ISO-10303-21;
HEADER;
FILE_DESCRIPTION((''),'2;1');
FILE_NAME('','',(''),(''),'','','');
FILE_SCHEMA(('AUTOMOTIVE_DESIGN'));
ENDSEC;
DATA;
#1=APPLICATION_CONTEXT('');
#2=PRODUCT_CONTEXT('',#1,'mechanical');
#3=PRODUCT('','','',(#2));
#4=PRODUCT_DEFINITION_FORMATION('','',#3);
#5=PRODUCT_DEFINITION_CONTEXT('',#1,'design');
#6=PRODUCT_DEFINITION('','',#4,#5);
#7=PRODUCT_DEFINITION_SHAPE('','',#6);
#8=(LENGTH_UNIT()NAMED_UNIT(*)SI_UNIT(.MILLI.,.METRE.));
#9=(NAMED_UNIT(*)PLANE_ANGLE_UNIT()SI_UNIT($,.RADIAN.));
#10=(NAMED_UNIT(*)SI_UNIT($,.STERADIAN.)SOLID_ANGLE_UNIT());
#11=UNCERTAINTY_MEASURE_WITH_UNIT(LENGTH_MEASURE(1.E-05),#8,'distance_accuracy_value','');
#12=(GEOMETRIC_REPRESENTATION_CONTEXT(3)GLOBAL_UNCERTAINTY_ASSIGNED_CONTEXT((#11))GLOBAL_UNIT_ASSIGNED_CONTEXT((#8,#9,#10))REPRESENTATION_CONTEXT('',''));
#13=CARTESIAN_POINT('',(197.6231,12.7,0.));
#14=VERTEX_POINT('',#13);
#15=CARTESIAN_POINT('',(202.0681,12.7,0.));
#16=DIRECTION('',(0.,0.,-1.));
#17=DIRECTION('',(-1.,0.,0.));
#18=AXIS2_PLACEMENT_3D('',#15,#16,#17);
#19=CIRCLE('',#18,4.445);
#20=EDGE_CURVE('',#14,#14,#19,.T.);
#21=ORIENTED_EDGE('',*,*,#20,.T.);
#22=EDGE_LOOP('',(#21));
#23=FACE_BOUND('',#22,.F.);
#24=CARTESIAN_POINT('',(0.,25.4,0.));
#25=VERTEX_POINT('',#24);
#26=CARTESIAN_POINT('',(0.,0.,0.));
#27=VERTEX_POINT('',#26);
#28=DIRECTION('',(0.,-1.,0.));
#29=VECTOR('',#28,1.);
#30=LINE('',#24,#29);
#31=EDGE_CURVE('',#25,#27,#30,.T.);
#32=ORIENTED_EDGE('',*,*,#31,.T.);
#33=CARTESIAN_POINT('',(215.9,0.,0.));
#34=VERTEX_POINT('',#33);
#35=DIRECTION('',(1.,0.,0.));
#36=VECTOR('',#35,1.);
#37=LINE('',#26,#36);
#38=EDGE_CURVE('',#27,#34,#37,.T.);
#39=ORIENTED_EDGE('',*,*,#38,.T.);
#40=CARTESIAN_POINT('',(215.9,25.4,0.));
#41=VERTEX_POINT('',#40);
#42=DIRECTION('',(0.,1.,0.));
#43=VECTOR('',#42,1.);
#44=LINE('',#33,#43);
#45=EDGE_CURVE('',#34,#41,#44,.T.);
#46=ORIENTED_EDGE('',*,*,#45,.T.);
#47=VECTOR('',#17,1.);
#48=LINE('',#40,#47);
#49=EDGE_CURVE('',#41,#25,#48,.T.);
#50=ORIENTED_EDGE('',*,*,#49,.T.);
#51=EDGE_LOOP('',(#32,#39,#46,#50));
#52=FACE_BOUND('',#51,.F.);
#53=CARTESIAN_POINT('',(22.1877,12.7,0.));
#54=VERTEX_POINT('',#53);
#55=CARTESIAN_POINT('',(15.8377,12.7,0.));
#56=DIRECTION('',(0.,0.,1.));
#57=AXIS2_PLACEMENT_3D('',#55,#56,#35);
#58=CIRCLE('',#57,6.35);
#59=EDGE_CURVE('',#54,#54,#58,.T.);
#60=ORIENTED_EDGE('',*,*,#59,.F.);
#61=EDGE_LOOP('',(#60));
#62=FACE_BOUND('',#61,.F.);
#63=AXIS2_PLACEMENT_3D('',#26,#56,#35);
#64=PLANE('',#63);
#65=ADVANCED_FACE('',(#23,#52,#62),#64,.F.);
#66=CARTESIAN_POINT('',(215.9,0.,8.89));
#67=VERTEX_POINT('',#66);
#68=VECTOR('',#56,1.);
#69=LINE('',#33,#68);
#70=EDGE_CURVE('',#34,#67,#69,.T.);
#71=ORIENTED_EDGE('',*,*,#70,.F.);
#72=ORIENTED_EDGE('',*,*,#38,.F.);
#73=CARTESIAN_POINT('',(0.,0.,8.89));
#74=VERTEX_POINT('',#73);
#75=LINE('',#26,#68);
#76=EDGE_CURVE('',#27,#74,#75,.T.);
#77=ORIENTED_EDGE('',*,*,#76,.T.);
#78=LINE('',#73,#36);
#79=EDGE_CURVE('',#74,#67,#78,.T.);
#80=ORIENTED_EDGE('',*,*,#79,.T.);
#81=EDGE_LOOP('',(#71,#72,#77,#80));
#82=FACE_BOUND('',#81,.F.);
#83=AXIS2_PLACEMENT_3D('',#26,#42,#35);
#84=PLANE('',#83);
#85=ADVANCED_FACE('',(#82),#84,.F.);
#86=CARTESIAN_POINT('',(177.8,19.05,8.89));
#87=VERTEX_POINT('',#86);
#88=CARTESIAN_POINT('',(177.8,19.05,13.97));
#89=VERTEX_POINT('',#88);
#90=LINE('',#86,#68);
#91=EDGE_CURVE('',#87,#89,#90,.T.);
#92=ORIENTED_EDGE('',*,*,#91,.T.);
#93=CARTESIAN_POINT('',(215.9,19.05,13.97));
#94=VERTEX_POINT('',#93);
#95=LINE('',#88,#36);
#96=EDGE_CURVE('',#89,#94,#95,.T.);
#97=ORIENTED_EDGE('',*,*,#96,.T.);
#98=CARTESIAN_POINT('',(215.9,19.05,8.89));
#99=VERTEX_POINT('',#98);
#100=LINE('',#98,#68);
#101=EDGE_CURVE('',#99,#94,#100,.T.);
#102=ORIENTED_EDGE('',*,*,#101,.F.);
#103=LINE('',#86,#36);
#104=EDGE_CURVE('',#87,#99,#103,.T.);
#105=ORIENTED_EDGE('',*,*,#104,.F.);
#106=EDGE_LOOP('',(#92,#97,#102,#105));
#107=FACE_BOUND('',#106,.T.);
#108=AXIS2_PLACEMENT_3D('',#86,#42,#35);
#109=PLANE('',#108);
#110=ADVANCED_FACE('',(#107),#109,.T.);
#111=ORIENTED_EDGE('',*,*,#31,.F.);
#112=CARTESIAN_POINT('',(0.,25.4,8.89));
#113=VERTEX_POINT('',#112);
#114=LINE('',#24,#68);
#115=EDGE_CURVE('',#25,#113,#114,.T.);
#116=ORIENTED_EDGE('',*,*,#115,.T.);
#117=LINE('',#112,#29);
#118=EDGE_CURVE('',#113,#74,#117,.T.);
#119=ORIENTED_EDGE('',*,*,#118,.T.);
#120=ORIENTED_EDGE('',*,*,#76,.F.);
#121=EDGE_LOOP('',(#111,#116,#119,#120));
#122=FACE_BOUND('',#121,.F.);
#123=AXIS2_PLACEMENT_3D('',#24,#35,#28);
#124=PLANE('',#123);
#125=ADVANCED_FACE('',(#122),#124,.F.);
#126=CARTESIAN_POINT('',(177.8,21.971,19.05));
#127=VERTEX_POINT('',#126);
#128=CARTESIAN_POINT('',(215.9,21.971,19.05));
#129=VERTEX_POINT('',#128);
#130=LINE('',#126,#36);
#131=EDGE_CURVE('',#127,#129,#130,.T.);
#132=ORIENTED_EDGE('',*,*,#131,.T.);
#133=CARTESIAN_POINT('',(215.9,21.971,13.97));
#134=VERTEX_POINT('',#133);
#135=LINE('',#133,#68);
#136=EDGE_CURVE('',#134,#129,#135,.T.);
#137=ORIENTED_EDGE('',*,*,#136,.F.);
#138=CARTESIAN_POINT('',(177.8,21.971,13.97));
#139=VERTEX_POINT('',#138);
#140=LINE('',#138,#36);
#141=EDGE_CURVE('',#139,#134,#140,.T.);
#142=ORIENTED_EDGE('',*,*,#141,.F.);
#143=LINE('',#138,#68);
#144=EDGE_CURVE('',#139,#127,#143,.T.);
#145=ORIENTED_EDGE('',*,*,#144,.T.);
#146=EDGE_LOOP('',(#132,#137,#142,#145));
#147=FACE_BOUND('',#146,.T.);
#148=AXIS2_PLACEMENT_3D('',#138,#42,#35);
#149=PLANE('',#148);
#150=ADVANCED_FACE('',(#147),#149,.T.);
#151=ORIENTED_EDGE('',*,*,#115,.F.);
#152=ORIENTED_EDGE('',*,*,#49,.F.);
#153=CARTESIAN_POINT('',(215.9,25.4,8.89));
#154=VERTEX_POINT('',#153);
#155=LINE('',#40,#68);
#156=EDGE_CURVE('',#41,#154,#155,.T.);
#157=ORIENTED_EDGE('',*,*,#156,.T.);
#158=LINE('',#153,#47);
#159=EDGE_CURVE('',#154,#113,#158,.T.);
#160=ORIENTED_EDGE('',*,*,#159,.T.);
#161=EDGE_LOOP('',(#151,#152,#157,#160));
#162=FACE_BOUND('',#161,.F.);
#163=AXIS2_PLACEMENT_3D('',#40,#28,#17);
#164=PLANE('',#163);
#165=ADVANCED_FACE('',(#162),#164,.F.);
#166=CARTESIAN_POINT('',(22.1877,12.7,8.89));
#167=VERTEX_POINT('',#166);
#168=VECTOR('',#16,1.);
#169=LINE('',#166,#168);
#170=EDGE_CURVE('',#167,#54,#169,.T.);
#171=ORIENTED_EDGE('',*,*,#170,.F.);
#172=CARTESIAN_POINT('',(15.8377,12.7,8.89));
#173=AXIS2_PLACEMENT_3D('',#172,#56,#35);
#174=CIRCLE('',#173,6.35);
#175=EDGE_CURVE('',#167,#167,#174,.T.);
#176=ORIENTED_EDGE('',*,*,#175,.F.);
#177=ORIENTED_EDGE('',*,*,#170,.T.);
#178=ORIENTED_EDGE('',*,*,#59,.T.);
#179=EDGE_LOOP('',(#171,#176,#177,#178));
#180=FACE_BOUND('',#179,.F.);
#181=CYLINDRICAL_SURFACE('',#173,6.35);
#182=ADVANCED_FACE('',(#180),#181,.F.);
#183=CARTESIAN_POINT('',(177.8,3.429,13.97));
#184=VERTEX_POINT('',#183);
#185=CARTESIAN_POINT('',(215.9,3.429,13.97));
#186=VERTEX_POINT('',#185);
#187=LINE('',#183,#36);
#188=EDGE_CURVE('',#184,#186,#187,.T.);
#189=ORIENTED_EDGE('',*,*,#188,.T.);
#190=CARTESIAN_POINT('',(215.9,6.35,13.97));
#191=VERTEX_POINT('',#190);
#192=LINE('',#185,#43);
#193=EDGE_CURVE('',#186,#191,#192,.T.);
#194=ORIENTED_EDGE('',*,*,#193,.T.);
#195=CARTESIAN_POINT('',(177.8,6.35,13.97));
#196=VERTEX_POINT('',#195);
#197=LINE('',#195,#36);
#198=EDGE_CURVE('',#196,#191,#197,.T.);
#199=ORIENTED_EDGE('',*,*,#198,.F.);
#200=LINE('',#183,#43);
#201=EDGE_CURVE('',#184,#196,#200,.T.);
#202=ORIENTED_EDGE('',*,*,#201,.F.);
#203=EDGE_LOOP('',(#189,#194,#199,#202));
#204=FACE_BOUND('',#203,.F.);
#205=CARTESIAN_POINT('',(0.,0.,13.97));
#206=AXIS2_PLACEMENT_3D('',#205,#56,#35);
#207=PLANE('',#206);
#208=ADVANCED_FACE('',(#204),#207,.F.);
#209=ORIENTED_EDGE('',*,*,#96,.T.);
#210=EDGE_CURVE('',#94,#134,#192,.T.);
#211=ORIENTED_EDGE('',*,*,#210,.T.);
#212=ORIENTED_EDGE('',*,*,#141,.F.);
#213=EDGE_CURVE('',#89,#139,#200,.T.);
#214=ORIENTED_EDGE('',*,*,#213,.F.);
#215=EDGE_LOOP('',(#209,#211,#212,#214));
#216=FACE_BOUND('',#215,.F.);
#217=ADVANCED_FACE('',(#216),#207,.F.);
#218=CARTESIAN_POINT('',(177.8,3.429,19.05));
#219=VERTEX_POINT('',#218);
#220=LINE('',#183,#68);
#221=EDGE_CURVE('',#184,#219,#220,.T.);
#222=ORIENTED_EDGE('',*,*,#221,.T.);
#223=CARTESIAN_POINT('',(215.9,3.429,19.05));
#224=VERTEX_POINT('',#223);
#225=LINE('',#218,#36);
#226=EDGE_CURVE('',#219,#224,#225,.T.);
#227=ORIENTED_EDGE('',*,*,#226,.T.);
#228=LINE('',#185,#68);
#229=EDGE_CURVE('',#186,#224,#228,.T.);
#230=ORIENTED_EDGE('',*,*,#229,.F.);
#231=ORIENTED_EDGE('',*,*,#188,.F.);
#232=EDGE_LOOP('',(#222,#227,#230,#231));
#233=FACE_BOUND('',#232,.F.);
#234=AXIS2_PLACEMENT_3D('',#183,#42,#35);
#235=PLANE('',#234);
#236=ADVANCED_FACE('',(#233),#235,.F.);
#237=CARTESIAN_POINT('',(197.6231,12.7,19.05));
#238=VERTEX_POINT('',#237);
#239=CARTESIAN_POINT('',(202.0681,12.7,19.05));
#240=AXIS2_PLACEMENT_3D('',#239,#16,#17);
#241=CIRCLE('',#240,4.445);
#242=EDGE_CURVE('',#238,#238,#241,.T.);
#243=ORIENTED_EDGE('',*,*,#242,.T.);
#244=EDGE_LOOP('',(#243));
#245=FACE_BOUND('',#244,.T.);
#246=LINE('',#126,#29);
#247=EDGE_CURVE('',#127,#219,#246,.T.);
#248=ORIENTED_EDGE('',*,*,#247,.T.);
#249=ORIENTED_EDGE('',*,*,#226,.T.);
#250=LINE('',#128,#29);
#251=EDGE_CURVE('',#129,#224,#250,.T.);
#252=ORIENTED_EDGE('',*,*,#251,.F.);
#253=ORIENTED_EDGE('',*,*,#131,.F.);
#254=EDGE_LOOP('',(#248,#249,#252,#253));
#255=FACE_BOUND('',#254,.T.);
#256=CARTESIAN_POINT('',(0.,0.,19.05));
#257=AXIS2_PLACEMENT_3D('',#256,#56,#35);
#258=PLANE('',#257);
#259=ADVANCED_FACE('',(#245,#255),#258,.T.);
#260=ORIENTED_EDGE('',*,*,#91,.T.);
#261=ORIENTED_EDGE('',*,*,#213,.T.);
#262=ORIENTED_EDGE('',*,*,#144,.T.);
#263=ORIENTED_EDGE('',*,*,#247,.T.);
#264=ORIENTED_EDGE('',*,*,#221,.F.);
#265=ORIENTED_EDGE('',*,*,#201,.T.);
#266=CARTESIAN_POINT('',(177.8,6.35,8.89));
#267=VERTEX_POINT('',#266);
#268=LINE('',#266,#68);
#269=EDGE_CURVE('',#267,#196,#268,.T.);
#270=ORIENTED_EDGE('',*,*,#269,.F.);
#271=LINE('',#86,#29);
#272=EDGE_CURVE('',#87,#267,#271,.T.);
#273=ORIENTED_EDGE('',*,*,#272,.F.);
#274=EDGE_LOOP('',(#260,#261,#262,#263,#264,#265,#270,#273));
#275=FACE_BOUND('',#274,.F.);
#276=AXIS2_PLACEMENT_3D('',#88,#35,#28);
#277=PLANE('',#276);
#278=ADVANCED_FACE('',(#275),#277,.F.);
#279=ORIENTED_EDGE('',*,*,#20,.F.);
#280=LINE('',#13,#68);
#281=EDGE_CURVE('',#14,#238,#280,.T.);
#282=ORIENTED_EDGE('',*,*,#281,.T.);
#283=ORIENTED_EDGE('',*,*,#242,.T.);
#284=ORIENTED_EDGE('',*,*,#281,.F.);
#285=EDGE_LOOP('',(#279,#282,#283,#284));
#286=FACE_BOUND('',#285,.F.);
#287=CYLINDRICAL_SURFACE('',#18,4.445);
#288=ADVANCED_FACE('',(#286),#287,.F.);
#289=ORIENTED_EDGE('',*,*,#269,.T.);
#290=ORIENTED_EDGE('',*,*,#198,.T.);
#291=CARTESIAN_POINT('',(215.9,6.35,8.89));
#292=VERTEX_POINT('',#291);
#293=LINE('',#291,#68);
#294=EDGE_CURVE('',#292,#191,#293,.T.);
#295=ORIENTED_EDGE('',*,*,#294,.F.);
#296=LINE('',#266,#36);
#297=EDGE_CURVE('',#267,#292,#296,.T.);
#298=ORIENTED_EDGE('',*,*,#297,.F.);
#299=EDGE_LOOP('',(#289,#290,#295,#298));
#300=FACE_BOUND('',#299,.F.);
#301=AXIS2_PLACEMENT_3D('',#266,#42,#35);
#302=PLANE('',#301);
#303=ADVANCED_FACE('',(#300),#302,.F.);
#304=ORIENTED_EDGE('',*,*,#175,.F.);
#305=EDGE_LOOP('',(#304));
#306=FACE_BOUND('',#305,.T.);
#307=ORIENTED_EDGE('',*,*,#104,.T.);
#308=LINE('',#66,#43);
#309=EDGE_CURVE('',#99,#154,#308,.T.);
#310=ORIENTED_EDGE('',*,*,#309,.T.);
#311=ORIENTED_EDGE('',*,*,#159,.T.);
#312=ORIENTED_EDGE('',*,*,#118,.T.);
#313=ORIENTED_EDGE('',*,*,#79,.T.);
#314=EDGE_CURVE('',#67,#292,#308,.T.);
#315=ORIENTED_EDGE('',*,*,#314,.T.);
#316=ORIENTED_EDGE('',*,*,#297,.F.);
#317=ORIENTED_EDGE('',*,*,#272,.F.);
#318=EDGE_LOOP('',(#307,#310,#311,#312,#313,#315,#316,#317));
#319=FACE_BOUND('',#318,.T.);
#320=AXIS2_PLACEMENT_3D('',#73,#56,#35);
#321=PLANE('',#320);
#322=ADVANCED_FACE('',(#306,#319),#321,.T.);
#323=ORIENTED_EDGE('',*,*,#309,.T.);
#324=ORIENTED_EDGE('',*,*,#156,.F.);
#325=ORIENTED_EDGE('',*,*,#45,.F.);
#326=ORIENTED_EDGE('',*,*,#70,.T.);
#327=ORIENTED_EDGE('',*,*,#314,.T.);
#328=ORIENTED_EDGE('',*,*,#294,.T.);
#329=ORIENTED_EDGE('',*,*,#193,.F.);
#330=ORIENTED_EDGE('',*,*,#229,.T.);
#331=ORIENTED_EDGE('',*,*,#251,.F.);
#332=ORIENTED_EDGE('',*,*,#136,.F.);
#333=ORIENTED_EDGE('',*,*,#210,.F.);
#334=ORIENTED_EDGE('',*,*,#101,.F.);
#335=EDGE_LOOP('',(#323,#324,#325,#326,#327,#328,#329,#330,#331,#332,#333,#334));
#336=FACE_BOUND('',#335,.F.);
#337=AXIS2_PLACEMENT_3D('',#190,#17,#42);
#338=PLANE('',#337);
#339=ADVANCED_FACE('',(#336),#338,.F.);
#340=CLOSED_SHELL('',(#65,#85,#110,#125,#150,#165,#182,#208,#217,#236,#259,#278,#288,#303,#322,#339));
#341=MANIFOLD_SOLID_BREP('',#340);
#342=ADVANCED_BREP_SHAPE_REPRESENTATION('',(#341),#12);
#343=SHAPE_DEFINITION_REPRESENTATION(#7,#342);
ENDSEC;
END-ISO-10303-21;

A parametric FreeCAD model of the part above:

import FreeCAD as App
import Part
import Sketcher

V = App.Vector
Q = App.Units.Quantity

doc = App.newDocument("Part")
body = doc.addObject("PartDesign::Body", "Body")

sketch1 = body.newObject("Sketcher::SketchObject", "Sketch")
sketch1.AttachmentSupport = (doc.getObject("XY_Plane"), [""])
sketch1.MapMode = "FlatFace"
sketch1.addGeometry(Part.LineSegment(V(0, 25, 0), V(0, 0, 0)), False)
sketch1.addGeometry(Part.LineSegment(V(0, 0, 0), V(216, 0, 0)), False)
sketch1.addGeometry(Part.LineSegment(V(216, 0, 0), V(216, 25, 0)), False)
sketch1.addGeometry(Part.LineSegment(V(216, 25, 0), V(0, 25, 0)), False)
sketch1.addConstraint(Sketcher.Constraint("Coincident", 0, 2, 1, 1))
sketch1.addConstraint(Sketcher.Constraint("Coincident", 1, 2, 2, 1))
sketch1.addConstraint(Sketcher.Constraint("Coincident", 2, 2, 3, 1))
sketch1.addConstraint(Sketcher.Constraint("Coincident", 3, 2, 0, 1))
sketch1.addConstraint(Sketcher.Constraint("Vertical", 0))
sketch1.addConstraint(Sketcher.Constraint("Horizontal", 1))
sketch1.addConstraint(Sketcher.Constraint("Vertical", 2))
sketch1.addConstraint(Sketcher.Constraint("Horizontal", 3))
sketch1.addConstraint(Sketcher.Constraint("Coincident", 0, 2, -1, 1))
sketch1.addConstraint(Sketcher.Constraint("DistanceY", 0, 2, 0, 1, Q("1 in")))
sketch1.addConstraint(Sketcher.Constraint("DistanceX", 1, 1, 1, 2, Q("8.5 in")))
pad1 = body.newObject("PartDesign::Pad", "Pad")
pad1.Profile = sketch1
pad1.Length = Q("0.35 in")

sketch2 = body.newObject("Sketcher::SketchObject", "Sketch001")
sketch2.AttachmentSupport = (doc.getObject("XY_Plane"), [""])
sketch2.MapMode = "FlatFace"
sketch2.AttachmentOffset = App.Placement(V(0, 0, 0.35 * 25.4), App.Rotation())
sketch2.addGeometry(Part.LineSegment(V(178, 6, 0), V(216, 6, 0)), False)
sketch2.addGeometry(Part.LineSegment(V(216, 6, 0), V(216, 19, 0)), False)
sketch2.addGeometry(Part.LineSegment(V(216, 19, 0), V(178, 19, 0)), False)
sketch2.addGeometry(Part.LineSegment(V(178, 19, 0), V(178, 6, 0)), False)
sketch2.addConstraint(Sketcher.Constraint("Coincident", 0, 2, 1, 1))
sketch2.addConstraint(Sketcher.Constraint("Coincident", 1, 2, 2, 1))
sketch2.addConstraint(Sketcher.Constraint("Coincident", 2, 2, 3, 1))
sketch2.addConstraint(Sketcher.Constraint("Coincident", 3, 2, 0, 1))
sketch2.addConstraint(Sketcher.Constraint("Horizontal", 0))
sketch2.addConstraint(Sketcher.Constraint("Vertical", 1))
sketch2.addConstraint(Sketcher.Constraint("Horizontal", 2))
sketch2.addConstraint(Sketcher.Constraint("Vertical", 3))
sketch2.addConstraint(Sketcher.Constraint("DistanceX", 0, 1, 0, 2, Q("1.5 in")))
sketch2.addConstraint(Sketcher.Constraint("DistanceY", -1, 1, 0, 2, Q("0.25 in")))
sketch2.addConstraint(Sketcher.Constraint("DistanceY", 1, 1, 1, 2, Q("0.5 in")))
sketch2.addConstraint(Sketcher.Constraint("DistanceX", -1, 1, 2, 2, Q("7 in")))
pad2 = body.newObject("PartDesign::Pad", "Pad001")
pad2.Profile = sketch2
pad2.Length = Q("0.2 in")

sketch3 = body.newObject("Sketcher::SketchObject", "Sketch002")
sketch3.AttachmentSupport = (doc.getObject("XY_Plane"), [""])
sketch3.MapMode = "FlatFace"
sketch3.AttachmentOffset = App.Placement(V(0, 0, 0.55 * 25.4), App.Rotation())
sketch3.addGeometry(Part.LineSegment(V(216, 22, 0), V(178, 22, 0)), False)
sketch3.addGeometry(Part.LineSegment(V(178, 22, 0), V(178, 3, 0)), False)
sketch3.addGeometry(Part.LineSegment(V(178, 3, 0), V(216, 3, 0)), False)
sketch3.addGeometry(Part.LineSegment(V(216, 3, 0), V(216, 22, 0)), False)
sketch3.addConstraint(Sketcher.Constraint("Coincident", 0, 2, 1, 1))
sketch3.addConstraint(Sketcher.Constraint("Coincident", 1, 2, 2, 1))
sketch3.addConstraint(Sketcher.Constraint("Coincident", 2, 2, 3, 1))
sketch3.addConstraint(Sketcher.Constraint("Coincident", 3, 2, 0, 1))
sketch3.addConstraint(Sketcher.Constraint("Horizontal", 0))
sketch3.addConstraint(Sketcher.Constraint("Vertical", 1))
sketch3.addConstraint(Sketcher.Constraint("Horizontal", 2))
sketch3.addConstraint(Sketcher.Constraint("Vertical", 3))
sketch3.addConstraint(Sketcher.Constraint("DistanceX", 0, 2, 0, 1, Q("1.5 in")))
sketch3.addConstraint(Sketcher.Constraint("DistanceX", -1, 1, 0, 2, Q("7 in")))
sketch3.addConstraint(Sketcher.Constraint("DistanceY", 1, 2, 1, 1, Q("0.73 in")))
sketch3.addConstraint(Sketcher.Constraint("DistanceY", -1, 1, 0, 2, Q("0.865 in")))
pad3 = body.newObject("PartDesign::Pad", "Pad002")
pad3.Profile = sketch3
pad3.Length = Q("0.2 in")

sketch4 = body.newObject("Sketcher::SketchObject", "Sketch003")
sketch4.AttachmentSupport = (doc.getObject("XY_Plane"), [""])
sketch4.MapMode = "FlatFace"
sketch4.addGeometry(Part.Circle(V(202.1, 12.7, 0), V(0, 0, 1), 4.4), False)
sketch4.addConstraint(Sketcher.Constraint("Diameter", 0, Q("0.35 in")))
sketch4.addConstraint(Sketcher.Constraint("DistanceY", -1, 1, 0, 3, Q("0.5 in")))
sketch4.addConstraint(Sketcher.Constraint("DistanceX", -1, 1, 0, 3, 202.068))
pocket1 = body.newObject("PartDesign::Pocket", "Pocket")
pocket1.Profile = sketch4
pocket1.Length = Q("5 in")
pocket1.Reversed = True

sketch5 = body.newObject("Sketcher::SketchObject", "Sketch004")
sketch5.AttachmentSupport = (doc.getObject("XY_Plane"), [""])
sketch5.MapMode = "FlatFace"
sketch5.AttachmentOffset = App.Placement(V(0, 0, 0.35 * 25.4), App.Rotation())
sketch5.addGeometry(Part.Circle(V(16, 13, 0), V(0, 0, 1), 6), False)
sketch5.addConstraint(Sketcher.Constraint("Diameter", 0, Q("0.5 in")))
sketch5.addConstraint(Sketcher.Constraint("DistanceY", -1, 1, 0, 3, Q("0.5 in")))
sketch5.addConstraint(Sketcher.Constraint("DistanceX", -1, 1, 0, 3, 15.8377))
pocket2 = body.newObject("PartDesign::Pocket", "Pocket001")
pocket2.Profile = sketch5
pocket2.Length = Q("1 in")

doc.recompute()
